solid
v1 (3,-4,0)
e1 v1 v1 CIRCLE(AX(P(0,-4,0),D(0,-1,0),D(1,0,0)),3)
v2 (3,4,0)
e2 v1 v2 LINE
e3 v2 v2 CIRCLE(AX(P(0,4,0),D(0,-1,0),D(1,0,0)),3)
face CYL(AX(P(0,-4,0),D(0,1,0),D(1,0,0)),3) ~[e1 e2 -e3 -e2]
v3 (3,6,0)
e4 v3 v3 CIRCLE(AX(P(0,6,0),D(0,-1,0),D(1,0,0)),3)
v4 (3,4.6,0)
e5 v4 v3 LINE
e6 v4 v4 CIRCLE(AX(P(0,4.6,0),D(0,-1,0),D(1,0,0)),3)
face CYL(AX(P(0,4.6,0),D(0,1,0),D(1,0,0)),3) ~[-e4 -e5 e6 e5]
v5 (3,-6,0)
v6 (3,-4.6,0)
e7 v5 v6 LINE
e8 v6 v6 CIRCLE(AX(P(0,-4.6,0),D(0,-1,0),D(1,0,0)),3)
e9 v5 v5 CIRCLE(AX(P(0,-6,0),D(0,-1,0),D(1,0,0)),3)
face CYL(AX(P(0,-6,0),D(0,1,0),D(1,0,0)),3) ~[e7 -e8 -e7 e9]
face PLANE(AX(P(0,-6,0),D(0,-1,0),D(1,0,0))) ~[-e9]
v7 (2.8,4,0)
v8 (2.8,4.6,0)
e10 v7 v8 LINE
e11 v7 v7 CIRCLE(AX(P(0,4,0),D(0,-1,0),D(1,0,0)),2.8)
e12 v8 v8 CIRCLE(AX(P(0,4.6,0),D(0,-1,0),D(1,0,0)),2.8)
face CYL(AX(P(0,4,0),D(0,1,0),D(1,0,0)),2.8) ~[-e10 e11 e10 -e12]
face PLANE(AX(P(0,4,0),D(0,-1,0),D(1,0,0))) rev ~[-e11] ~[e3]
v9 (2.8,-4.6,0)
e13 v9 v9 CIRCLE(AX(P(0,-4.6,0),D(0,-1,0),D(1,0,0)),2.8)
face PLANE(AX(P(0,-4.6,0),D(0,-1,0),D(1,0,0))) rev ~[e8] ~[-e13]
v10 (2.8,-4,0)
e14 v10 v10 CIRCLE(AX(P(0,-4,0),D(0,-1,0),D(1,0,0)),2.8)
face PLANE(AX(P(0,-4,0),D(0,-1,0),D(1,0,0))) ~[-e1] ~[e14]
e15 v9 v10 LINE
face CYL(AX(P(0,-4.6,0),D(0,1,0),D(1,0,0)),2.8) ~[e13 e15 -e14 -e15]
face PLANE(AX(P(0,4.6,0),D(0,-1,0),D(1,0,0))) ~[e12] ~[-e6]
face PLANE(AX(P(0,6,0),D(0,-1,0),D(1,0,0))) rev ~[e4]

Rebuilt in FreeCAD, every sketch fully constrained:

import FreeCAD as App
import Part
import Sketcher


def add_polygon(sketch, points):
    """Adds a closed chain of lines whose ends are joined by coincident constraints."""
    first, n = sketch.GeometryCount, len(points)
    for a, b in zip(points, points[1:] + points[:1]):
        sketch.addGeometry(Part.LineSegment(App.Vector(*a, 0), App.Vector(*b, 0)), False)
    for i in range(n):
        sketch.addConstraint(Sketcher.Constraint("Coincident", first + i, 2, first + (i + 1) % n, 1))

doc = App.newDocument("Part")
body = doc.addObject("PartDesign::Body", "Body")

sketch1 = doc.addObject("Sketcher::SketchObject", "Sketch")
body.addObject(sketch1)
sketch1.AttachmentSupport = (doc.XY_Plane, [""])
sketch1.MapMode = "FlatFace"
add_polygon(sketch1, [(0, -6), (3, -6), (3, -4.6), (2.8, -4.6), (2.8, -4), (3, -4), (3, 4), (2.8, 4), (2.8, 4.6), (3, 4.6), (3, 6), (0, 6)])
sketch1.addConstraint([
    Sketcher.Constraint("Horizontal", 0),
    Sketcher.Constraint("Vertical", 1),
    Sketcher.Constraint("Horizontal", 2),
    Sketcher.Constraint("Vertical", 3),
    Sketcher.Constraint("Horizontal", 4),
    Sketcher.Constraint("Vertical", 5),
    Sketcher.Constraint("Horizontal", 6),
    Sketcher.Constraint("Vertical", 7),
    Sketcher.Constraint("Horizontal", 8),
    Sketcher.Constraint("Vertical", 9),
    Sketcher.Constraint("Horizontal", 10),
    Sketcher.Constraint("Vertical", 11),
    Sketcher.Constraint("Symmetric", 10, 2, 11, 2, -1, 1),
    Sketcher.Constraint("Symmetric", 3, 2, 6, 2, -1),
    Sketcher.Constraint("Symmetric", 1, 2, 8, 2, -1),
    Sketcher.Constraint("Vertical", 1, 2, 4, 2),
    Sketcher.Constraint("DistanceX", 0, 1, 0, 2, 3.0),
    Sketcher.Constraint("DistanceY", 5, 1, 5, 2, 8.0),
    Sketcher.Constraint("DistanceY", 11, 2, 11, 1, 12.0),
    Sketcher.Constraint("DistanceX", 2, 2, 2, 1, 0.2),
    Sketcher.Constraint("DistanceY", 1, 1, 1, 2, 1.4),
])
revolution = doc.addObject("PartDesign::Revolution", "Revolution")
body.addObject(revolution)
revolution.Profile = sketch1
revolution.ReferenceAxis = (sketch1, ["V_Axis"])
revolution.Angle = 360

doc.recompute()
